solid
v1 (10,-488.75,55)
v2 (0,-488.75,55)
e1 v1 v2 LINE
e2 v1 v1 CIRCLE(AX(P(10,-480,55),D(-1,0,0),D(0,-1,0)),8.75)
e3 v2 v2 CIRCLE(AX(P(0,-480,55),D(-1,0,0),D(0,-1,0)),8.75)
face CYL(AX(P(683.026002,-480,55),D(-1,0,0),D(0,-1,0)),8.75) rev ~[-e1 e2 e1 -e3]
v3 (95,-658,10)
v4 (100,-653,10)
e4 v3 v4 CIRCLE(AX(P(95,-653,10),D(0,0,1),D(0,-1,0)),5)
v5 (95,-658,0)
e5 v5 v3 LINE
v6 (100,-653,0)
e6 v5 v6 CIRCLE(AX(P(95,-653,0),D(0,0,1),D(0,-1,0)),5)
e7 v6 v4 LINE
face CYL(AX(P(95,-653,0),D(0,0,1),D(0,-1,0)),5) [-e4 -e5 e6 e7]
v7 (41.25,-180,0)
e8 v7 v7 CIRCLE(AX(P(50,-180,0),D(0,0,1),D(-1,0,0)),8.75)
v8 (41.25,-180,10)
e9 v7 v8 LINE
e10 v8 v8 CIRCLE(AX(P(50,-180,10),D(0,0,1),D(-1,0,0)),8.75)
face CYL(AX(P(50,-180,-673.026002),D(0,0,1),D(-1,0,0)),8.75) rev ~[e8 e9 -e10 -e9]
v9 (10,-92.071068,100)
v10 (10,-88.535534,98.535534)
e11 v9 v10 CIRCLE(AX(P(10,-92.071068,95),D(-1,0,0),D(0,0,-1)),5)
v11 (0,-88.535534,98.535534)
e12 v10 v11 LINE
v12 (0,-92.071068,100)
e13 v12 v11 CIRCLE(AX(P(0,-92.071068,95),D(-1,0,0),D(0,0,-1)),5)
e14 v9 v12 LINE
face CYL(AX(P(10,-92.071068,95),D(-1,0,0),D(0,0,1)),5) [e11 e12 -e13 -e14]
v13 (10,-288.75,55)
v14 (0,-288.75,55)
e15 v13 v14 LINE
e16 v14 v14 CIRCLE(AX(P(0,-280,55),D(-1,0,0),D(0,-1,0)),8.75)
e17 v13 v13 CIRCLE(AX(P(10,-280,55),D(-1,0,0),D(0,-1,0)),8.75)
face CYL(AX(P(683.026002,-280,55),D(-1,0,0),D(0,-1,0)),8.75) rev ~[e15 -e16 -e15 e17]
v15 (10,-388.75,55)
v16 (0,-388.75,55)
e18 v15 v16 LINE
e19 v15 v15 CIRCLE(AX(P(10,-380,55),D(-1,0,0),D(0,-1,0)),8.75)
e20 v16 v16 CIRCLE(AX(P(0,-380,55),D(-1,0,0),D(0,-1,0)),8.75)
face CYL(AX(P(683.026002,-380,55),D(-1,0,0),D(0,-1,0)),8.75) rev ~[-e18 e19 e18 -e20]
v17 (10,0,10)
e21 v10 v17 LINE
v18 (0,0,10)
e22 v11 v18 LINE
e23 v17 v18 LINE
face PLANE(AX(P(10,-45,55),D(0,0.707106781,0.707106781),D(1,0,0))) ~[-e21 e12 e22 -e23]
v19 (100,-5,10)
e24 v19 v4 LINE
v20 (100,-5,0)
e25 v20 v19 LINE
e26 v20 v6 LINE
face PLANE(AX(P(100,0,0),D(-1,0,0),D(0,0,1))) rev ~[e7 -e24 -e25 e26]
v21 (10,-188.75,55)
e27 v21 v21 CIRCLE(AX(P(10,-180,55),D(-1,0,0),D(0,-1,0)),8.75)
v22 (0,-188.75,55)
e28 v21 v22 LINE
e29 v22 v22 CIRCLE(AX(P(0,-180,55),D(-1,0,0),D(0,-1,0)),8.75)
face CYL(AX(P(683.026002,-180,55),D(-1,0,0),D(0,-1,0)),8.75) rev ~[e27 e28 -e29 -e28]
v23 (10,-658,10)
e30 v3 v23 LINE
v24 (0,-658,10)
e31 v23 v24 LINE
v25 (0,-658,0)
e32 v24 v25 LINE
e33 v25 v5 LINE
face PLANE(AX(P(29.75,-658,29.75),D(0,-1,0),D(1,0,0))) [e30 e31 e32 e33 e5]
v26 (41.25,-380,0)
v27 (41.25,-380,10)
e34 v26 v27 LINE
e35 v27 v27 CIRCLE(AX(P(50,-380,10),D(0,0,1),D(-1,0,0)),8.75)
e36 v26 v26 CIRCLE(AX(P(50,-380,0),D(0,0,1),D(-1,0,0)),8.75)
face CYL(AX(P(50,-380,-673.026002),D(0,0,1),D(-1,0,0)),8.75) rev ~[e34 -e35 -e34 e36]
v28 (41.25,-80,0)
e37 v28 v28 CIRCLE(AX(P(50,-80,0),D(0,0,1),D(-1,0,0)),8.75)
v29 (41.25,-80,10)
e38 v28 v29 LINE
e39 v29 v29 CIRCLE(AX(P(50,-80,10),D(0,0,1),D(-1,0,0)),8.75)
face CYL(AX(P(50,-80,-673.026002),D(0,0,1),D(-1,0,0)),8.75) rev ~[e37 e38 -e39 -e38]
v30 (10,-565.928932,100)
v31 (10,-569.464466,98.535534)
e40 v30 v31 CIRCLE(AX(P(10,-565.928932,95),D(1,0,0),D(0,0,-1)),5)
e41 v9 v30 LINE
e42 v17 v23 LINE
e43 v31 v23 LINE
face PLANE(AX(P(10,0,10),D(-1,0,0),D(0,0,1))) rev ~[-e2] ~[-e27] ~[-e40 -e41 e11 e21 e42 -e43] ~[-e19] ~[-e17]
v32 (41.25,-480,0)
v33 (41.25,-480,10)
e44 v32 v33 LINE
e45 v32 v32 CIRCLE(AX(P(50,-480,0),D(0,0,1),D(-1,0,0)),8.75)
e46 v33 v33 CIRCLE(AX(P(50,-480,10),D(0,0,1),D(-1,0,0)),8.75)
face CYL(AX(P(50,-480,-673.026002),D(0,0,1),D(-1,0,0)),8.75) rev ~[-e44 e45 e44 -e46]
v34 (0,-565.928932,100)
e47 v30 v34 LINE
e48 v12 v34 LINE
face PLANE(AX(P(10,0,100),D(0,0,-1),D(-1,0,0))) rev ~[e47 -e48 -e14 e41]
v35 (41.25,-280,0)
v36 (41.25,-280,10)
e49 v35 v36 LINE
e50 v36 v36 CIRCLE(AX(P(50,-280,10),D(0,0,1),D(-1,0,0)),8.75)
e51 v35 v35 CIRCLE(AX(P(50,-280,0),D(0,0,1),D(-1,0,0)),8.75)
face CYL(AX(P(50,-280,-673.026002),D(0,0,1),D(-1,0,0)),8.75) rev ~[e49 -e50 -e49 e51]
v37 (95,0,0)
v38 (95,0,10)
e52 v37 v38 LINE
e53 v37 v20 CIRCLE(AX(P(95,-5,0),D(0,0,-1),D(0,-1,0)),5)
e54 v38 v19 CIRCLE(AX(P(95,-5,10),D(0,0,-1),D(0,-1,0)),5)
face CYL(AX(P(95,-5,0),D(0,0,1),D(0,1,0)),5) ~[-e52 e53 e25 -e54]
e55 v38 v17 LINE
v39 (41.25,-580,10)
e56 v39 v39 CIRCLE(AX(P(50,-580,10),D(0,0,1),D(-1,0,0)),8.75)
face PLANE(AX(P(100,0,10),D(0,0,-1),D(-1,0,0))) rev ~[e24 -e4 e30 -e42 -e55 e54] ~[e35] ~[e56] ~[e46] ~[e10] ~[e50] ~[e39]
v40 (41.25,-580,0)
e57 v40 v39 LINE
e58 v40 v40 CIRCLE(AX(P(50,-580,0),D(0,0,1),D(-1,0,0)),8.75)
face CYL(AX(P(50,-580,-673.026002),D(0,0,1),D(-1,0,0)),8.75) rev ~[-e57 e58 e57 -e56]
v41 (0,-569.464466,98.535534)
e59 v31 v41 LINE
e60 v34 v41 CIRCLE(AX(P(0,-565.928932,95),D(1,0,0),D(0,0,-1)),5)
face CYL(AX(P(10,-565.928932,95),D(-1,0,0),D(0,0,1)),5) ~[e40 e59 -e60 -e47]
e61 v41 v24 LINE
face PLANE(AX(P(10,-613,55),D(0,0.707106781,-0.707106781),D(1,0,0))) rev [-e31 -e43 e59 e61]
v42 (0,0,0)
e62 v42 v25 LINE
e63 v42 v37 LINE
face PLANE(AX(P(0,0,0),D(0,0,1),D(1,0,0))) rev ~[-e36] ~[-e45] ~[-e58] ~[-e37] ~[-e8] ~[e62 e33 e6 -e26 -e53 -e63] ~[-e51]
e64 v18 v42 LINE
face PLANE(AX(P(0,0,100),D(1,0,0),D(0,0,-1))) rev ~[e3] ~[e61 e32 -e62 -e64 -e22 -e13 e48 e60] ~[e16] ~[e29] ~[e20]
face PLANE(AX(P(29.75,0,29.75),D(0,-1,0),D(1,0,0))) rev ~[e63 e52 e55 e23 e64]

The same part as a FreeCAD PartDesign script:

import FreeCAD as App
import Part
import Sketcher
from FreeCAD import Vector


def edges_at(feature, points):
    """Names of the edges that pass closest to the given points."""
    edges = feature.Shape.Edges
    near = lambda p: min(range(len(edges)), key=lambda i: edges[i].distToShape(Part.Vertex(*p))[0])
    return sorted({f"Edge{near(p) + 1}" for p in points})


def add_polygon(sketch, points):
    """Adds a closed chain of lines whose ends are joined by coincident constraints."""
    first, n = sketch.GeometryCount, len(points)
    for a, b in zip(points, points[1:] + points[:1]):
        sketch.addGeometry(Part.LineSegment(App.Vector(*a, 0), App.Vector(*b, 0)), False)
    for i in range(n):
        sketch.addConstraint(Sketcher.Constraint("Coincident", first + i, 2, first + (i + 1) % n, 1))

doc = App.newDocument("Part")
params = doc.addObject("Spreadsheet::Sheet", "Params")
for row, (alias, value) in enumerate([
    ("sketch1_width", "100 mm"),
    ("sketch1_width2", "90 mm"),
    ("pad1_length", "658 mm"),
    ("sketch2_diameter", "17.5 mm"),
    ("hole_diameter", "17.5 mm"),
    ("sketch3_diameter", "17.5 mm"),
    ("hole2_diameter", "17.5 mm"),
    ("chamfer_size", "90 mm"),
    ("fillet_radius", "5 mm"),
], start=1):
    params.set(f"A{row}", alias)
    params.set(f"B{row}", "=" + value)
    params.setAlias(f"B{row}", alias)

body = doc.addObject("PartDesign::Body", "Body")

sketch1 = body.newObject("Sketcher::SketchObject", "Sketch")
sketch1.AttachmentSupport = (doc.getObject("XZ_Plane"), [""])
sketch1.MapMode = "FlatFace"
add_polygon(sketch1, [(0, 100), (0, 0), (100, 0), (100, 10), (10, 10), (10, 100)])
sketch1.addConstraint([
    Sketcher.Constraint("Vertical", 0),
    Sketcher.Constraint("Horizontal", 1),
    Sketcher.Constraint("Vertical", 2),
    Sketcher.Constraint("Horizontal", 3),
    Sketcher.Constraint("Vertical", 4),
    Sketcher.Constraint("Horizontal", 5),
    Sketcher.Constraint("Coincident", 0, 2, -1, 1),
    Sketcher.Constraint("Equal", 1, 0),
    Sketcher.Constraint("Equal", 5, 2),
    Sketcher.Constraint("DistanceX", 1, 1, 1, 2, 100.0),
    Sketcher.Constraint("DistanceX", 3, 2, 3, 1, 90.0),
])
sketch1.setExpression("Constraints[15]", "Params.sketch1_width")
sketch1.setExpression("Constraints[16]", "Params.sketch1_width2")
pad1 = body.newObject("PartDesign::Pad", "Pad")
pad1.Profile = sketch1
pad1.setExpression("Length", "Params.pad1_length")

sketch2 = body.newObject("Sketcher::SketchObject", "Sketch001")
sketch2.AttachmentSupport = (doc.getObject("YZ_Plane"), [""])
sketch2.MapMode = "FlatFace"
sketch2.AttachmentOffset = App.Placement(Vector(0, 0, 10), App.Rotation())
sketch2.addGeometry([
    Part.Circle(Vector(-180, 55, 0), Vector(0, 0, 1), 8.75),
    Part.Circle(Vector(-280, 55, 0), Vector(0, 0, 1), 8.75),
    Part.Circle(Vector(-380, 55, 0), Vector(0, 0, 1), 8.75),
    Part.Circle(Vector(-480, 55, 0), Vector(0, 0, 1), 8.75),
], False)
sketch2.addConstraint([
    Sketcher.Constraint("Equal", 0, 1),
    Sketcher.Constraint("Equal", 1, 2),
    Sketcher.Constraint("Equal", 2, 3),
    Sketcher.Constraint("Horizontal", 0, 3, 1, 3),
    Sketcher.Constraint("Horizontal", 1, 3, 2, 3),
    Sketcher.Constraint("Horizontal", 2, 3, 3, 3),
    Sketcher.Constraint("Diameter", 0, 17.5),
    Sketcher.Constraint("DistanceX", 0, 3, -1, 1, 180.0),
    Sketcher.Constraint("DistanceY", -1, 1, 0, 3, 55.0),
    Sketcher.Constraint("DistanceX", 1, 3, -1, 1, 280.0),
    Sketcher.Constraint("DistanceX", 2, 3, -1, 1, 380.0),
    Sketcher.Constraint("DistanceX", 3, 3, -1, 1, 480.0),
])
sketch2.setExpression("Constraints[6]", "Params.sketch2_diameter")
doc.recompute()
hole = body.newObject("PartDesign::Hole", "Hole")
hole.Profile = sketch2
hole.ThreadType = "None"
hole.setExpression("Diameter", "Params.hole_diameter")
hole.DepthType = "ThroughAll"

sketch3 = body.newObject("Sketcher::SketchObject", "Sketch002")
sketch3.AttachmentSupport = (doc.getObject("XY_Plane"), [""])
sketch3.MapMode = "FlatFace"
sketch3.addGeometry([
    Part.Circle(Vector(50, -580, 0), Vector(0, 0, 1), 8.75),
    Part.Circle(Vector(50, -480, 0), Vector(0, 0, 1), 8.75),
    Part.Circle(Vector(50, -380, 0), Vector(0, 0, 1), 8.75),
    Part.Circle(Vector(50, -280, 0), Vector(0, 0, 1), 8.75),
    Part.Circle(Vector(50, -180, 0), Vector(0, 0, 1), 8.75),
    Part.Circle(Vector(50, -80, 0), Vector(0, 0, 1), 8.75),
], False)
sketch3.addConstraint([
    Sketcher.Constraint("Equal", 0, 1),
    Sketcher.Constraint("Equal", 1, 2),
    Sketcher.Constraint("Equal", 2, 3),
    Sketcher.Constraint("Equal", 3, 4),
    Sketcher.Constraint("Equal", 4, 5),
    Sketcher.Constraint("Vertical", 0, 3, 1, 3),
    Sketcher.Constraint("Vertical", 1, 3, 2, 3),
    Sketcher.Constraint("Vertical", 2, 3, 3, 3),
    Sketcher.Constraint("Vertical", 3, 3, 4, 3),
    Sketcher.Constraint("Vertical", 4, 3, 5, 3),
    Sketcher.Constraint("Diameter", 0, 17.5),
    Sketcher.Constraint("DistanceX", -1, 1, 0, 3, 50.0),
    Sketcher.Constraint("DistanceY", 0, 3, -1, 1, 580.0),
    Sketcher.Constraint("DistanceY", 1, 3, -1, 1, 480.0),
    Sketcher.Constraint("DistanceY", 2, 3, -1, 1, 380.0),
    Sketcher.Constraint("DistanceY", 3, 3, -1, 1, 280.0),
    Sketcher.Constraint("DistanceY", 4, 3, -1, 1, 180.0),
    Sketcher.Constraint("DistanceY", 5, 3, -1, 1, 80.0),
])
sketch3.setExpression("Constraints[10]", "Params.sketch3_diameter")
doc.recompute()
hole2 = body.newObject("PartDesign::Hole", "Hole001")
hole2.Profile = sketch3
hole2.ThreadType = "None"
hole2.setExpression("Diameter", "Params.hole2_diameter")
hole2.DepthType = "ThroughAll"
hole2.Reversed = True
doc.recompute()

chamfer = body.newObject("PartDesign::Chamfer", "Chamfer")
chamfer.Base = (hole2, edges_at(hole2, [(5, -658, 100), (5, 0, 100)]))
chamfer.setExpression("Size", "Params.chamfer_size")
doc.recompute()

fillet = body.newObject("PartDesign::Fillet", "Fillet")
fillet.Base = (chamfer, edges_at(chamfer, [
    (5, -90, 100),
    (100, 0, 5),
    (5, -568, 100),
    (100, -658, 5),
]))
fillet.setExpression("Radius", "Params.fillet_radius")

doc.recompute()
